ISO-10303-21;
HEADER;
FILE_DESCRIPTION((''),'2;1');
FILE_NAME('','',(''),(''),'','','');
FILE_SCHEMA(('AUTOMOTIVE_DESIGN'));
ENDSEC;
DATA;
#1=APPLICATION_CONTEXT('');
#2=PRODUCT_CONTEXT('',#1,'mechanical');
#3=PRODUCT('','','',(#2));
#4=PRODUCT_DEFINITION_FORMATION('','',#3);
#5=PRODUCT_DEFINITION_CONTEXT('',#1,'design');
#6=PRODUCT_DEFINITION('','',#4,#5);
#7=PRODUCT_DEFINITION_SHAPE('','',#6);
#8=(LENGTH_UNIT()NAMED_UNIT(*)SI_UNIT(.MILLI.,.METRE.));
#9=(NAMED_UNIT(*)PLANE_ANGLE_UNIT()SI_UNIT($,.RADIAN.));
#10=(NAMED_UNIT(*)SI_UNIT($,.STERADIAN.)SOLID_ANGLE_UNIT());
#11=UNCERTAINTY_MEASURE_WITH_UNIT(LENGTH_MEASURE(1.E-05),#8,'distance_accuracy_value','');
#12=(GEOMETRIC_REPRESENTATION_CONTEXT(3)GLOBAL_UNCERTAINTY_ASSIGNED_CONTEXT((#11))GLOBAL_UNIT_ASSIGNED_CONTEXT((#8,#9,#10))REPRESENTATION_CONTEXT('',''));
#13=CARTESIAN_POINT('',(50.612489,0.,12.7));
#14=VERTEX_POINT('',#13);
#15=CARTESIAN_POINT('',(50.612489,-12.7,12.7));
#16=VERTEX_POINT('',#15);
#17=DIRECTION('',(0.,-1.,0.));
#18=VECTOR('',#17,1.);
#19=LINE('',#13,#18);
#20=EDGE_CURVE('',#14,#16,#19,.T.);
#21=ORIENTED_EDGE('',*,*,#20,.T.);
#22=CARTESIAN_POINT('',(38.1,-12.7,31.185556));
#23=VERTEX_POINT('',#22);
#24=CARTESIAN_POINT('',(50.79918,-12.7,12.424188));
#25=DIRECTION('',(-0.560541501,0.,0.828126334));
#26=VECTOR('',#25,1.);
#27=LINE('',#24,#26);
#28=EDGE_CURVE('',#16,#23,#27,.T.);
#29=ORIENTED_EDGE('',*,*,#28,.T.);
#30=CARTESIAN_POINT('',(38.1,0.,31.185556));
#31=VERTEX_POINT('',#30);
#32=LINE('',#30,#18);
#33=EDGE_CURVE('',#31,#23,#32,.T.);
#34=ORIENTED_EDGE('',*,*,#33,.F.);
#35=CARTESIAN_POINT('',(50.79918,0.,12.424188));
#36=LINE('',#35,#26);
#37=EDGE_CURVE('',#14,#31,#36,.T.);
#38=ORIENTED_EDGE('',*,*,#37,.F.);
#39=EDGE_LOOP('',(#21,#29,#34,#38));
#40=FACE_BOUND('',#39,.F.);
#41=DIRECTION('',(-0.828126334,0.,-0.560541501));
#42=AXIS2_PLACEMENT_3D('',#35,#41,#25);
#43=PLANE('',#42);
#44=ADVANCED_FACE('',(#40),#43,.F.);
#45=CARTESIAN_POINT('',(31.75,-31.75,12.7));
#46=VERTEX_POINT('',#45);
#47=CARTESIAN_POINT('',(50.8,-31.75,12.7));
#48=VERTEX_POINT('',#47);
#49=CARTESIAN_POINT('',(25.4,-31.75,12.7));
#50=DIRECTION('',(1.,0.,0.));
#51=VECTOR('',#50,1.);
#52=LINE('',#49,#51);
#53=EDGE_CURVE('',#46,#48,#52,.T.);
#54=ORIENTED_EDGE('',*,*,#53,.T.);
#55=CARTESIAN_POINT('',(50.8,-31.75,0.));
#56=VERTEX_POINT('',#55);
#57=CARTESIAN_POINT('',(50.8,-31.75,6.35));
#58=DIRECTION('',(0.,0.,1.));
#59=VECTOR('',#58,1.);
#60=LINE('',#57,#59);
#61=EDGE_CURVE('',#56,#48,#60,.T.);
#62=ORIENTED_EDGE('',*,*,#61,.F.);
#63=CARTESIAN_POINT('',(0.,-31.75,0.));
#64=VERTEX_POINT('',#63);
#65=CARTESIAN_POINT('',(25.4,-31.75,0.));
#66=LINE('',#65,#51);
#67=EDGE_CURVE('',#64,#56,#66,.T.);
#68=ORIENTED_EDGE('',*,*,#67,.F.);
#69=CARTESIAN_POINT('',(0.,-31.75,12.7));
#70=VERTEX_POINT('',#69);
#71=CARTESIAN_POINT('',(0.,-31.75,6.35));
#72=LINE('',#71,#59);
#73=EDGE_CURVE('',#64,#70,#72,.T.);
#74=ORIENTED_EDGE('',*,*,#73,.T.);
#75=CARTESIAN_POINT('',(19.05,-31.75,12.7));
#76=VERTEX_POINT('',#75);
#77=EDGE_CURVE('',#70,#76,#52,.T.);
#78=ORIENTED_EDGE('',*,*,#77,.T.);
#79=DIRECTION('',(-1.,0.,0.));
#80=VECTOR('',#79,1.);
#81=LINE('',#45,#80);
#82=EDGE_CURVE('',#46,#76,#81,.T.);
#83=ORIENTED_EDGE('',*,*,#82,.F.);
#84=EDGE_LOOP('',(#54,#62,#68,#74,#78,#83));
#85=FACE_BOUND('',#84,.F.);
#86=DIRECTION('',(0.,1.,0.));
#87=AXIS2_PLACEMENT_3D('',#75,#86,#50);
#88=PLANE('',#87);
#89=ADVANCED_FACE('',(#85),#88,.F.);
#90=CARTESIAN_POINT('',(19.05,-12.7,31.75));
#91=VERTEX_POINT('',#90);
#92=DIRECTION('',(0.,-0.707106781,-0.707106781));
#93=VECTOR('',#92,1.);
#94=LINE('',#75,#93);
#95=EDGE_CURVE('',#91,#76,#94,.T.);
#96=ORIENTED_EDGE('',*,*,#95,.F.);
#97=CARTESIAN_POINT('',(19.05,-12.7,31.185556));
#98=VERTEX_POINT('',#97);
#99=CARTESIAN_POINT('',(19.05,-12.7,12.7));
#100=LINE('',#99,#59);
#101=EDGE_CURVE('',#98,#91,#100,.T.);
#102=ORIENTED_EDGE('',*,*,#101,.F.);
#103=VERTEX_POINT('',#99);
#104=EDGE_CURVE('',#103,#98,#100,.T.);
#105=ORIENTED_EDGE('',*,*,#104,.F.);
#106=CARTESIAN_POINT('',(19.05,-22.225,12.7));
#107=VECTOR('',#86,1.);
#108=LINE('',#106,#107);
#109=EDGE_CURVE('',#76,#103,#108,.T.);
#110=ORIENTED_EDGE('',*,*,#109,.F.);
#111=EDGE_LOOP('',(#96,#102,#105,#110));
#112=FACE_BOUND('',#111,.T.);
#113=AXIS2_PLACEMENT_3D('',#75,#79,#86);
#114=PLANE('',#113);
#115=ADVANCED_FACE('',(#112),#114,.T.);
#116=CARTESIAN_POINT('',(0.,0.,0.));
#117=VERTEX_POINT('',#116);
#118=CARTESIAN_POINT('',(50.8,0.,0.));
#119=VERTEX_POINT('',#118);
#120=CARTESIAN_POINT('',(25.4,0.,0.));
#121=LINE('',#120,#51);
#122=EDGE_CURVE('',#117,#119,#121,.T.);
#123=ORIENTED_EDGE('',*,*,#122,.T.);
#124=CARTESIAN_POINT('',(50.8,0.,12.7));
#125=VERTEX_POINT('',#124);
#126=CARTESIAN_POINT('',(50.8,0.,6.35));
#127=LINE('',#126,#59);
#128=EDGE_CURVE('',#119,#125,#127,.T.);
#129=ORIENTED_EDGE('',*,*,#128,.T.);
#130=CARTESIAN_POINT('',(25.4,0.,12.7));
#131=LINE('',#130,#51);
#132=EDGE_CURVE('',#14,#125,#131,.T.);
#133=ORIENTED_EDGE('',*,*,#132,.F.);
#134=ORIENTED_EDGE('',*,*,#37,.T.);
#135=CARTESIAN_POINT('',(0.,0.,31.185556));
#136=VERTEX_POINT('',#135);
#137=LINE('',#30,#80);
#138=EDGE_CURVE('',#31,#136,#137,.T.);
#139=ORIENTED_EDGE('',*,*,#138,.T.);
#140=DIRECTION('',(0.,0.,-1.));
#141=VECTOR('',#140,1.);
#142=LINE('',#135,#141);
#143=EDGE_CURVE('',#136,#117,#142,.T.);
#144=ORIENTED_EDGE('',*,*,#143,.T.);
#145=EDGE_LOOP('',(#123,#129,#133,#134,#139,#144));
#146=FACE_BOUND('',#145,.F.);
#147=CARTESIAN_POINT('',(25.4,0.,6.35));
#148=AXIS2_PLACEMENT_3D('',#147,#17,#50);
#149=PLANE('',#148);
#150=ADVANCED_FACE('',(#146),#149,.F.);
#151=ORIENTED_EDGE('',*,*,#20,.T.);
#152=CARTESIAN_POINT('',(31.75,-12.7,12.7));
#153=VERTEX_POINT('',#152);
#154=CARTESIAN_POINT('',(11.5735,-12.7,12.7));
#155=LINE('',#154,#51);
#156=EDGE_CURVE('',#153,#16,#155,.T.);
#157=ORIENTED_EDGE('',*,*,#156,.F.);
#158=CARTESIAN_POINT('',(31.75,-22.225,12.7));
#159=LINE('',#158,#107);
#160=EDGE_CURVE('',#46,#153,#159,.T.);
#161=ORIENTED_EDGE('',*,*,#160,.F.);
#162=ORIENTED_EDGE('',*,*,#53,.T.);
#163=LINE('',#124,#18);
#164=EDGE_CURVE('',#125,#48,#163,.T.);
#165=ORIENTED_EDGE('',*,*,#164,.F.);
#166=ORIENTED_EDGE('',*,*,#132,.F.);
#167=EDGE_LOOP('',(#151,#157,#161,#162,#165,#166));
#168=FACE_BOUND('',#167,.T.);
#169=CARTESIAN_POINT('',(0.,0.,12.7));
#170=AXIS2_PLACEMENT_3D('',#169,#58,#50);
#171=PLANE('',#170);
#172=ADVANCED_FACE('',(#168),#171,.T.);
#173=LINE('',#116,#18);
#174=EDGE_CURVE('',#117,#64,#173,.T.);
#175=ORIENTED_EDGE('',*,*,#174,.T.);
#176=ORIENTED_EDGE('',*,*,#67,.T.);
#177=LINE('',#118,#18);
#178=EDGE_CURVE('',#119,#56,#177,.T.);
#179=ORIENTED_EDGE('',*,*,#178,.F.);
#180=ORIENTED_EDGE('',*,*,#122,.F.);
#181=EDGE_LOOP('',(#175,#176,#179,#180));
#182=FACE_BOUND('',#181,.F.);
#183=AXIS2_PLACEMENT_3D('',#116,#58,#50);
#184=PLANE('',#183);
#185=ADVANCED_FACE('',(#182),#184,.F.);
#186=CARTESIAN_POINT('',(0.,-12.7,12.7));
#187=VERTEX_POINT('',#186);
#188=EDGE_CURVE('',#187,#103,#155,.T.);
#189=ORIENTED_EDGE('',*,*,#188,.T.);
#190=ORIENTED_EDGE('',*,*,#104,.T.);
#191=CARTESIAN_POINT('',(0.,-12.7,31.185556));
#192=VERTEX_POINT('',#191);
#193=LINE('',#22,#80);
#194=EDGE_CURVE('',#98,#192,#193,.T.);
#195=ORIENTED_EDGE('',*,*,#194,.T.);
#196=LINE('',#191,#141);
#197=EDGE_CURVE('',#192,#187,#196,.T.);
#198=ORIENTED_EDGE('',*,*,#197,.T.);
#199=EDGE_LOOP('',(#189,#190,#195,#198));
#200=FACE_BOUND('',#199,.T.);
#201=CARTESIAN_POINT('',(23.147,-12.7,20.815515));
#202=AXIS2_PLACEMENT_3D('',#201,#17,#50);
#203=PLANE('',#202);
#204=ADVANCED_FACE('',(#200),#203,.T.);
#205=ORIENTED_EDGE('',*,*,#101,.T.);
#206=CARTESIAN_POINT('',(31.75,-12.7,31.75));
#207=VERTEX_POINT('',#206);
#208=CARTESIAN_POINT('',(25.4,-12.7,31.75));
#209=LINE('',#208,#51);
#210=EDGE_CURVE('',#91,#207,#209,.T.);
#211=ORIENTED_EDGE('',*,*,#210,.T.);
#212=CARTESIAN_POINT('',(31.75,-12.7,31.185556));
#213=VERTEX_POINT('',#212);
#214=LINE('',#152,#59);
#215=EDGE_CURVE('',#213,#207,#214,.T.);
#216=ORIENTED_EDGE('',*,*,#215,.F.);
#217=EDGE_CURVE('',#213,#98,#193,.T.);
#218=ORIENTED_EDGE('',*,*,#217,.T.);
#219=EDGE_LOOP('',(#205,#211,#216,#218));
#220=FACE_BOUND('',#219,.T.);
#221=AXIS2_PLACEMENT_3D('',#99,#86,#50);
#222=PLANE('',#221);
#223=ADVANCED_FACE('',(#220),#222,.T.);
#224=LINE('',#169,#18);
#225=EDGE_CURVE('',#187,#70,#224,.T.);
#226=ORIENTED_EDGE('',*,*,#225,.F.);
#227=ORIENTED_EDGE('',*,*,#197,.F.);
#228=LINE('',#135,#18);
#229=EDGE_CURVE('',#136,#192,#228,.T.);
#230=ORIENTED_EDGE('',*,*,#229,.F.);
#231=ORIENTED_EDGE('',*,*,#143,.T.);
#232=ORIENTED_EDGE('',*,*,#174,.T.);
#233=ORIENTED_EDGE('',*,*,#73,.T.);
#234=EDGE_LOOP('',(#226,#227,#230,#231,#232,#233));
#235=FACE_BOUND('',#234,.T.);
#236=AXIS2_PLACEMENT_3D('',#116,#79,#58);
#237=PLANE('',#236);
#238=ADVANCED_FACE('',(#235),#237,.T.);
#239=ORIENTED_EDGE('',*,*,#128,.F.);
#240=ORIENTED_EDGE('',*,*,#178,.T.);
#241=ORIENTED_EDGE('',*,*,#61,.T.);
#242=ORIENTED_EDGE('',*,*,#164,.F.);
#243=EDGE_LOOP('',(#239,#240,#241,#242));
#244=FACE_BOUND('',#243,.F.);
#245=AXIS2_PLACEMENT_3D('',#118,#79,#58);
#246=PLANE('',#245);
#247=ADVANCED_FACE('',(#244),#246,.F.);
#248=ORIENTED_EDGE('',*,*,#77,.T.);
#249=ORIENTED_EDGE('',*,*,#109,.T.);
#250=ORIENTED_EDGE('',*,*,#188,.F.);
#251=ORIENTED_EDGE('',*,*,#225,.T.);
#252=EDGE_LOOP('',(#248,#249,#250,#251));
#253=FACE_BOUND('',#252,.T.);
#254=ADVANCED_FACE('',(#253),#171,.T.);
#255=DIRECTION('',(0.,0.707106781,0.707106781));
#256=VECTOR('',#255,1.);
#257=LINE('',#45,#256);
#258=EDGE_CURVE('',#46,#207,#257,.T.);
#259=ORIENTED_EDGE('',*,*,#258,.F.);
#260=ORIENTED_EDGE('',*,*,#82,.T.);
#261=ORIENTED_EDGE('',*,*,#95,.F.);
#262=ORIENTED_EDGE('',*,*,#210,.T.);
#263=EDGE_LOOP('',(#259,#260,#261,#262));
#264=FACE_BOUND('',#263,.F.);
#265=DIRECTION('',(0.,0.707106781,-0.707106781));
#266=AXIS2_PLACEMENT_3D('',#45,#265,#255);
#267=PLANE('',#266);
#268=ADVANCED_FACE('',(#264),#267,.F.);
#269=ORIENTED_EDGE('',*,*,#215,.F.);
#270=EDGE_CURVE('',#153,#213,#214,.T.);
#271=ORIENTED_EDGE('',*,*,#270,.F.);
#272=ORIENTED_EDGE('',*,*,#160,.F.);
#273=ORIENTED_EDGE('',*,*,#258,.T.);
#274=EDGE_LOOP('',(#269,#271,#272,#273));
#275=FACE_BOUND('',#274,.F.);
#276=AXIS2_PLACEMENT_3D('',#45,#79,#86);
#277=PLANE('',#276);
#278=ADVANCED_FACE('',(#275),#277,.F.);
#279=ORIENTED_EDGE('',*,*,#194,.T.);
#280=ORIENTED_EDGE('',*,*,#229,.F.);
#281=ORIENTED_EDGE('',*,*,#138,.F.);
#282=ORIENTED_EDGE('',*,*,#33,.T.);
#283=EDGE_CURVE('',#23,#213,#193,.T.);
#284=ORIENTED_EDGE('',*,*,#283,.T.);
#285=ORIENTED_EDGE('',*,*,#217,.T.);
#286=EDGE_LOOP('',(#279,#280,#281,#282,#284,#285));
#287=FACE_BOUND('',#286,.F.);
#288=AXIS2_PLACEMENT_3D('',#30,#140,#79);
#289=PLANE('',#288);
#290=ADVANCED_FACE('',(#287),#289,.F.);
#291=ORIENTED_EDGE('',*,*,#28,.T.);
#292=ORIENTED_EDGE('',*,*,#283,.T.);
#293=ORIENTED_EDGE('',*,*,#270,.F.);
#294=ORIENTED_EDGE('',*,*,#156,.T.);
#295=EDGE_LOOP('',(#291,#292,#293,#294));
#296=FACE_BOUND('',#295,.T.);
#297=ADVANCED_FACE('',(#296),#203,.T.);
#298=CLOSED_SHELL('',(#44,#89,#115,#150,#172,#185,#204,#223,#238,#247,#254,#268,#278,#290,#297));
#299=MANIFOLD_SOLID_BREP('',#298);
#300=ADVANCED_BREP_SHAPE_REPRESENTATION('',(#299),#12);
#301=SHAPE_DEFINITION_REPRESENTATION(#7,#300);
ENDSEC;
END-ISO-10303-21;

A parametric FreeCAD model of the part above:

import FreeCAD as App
import Part
import Sketcher
from FreeCAD import Vector
Q = App.Units.Quantity


def add_polygon(sketch, points):
    """Adds a closed chain of lines whose ends are joined by coincident constraints."""
    first, n = sketch.GeometryCount, len(points)
    for a, b in zip(points, points[1:] + points[:1]):
        sketch.addGeometry(Part.LineSegment(App.Vector(*a, 0), App.Vector(*b, 0)), False)
    for i in range(n):
        sketch.addConstraint(Sketcher.Constraint("Coincident", first + i, 2, first + (i + 1) % n, 1))

doc = App.newDocument("Part")
body = doc.addObject("PartDesign::Body", "Body")

# Sketch on XZ plane
sketch1 = doc.addObject("Sketcher::SketchObject", "Sketch")
body.addObject(sketch1)
sketch1.AttachmentSupport = (doc.XZ_Plane, [""])
sketch1.MapMode = "FlatFace"
add_polygon(sketch1, [(0, 13), (0, 0), (51, 0), (51, 13)])  # lines 0-3
sketch1.addConstraint([
    Sketcher.Constraint("Vertical", 0),
    Sketcher.Constraint("Horizontal", 1),
    Sketcher.Constraint("Vertical", 2),
    Sketcher.Constraint("Horizontal", 3),
    Sketcher.Constraint("Coincident", 0, 2, -1, 1),
    Sketcher.Constraint("DistanceX", 1, 1, 1, 2, Q("2 in")),
    Sketcher.Constraint("DistanceY", 0, 2, 0, 1, Q("0.5 in")),
])
pad1 = doc.addObject("PartDesign::Pad", "Pad")
body.addObject(pad1)
pad1.Profile = sketch1
pad1.Length = Q("1.25 in")

# Sketch on XZ plane
sketch2 = doc.addObject("Sketcher::SketchObject", "Sketch001")
body.addObject(sketch2)
sketch2.AttachmentSupport = (doc.XZ_Plane, [""])
sketch2.MapMode = "FlatFace"
add_polygon(sketch2, [(0, 12), (51, 12), (38, 31), (0, 31)])  # lines 0-3
sketch2.addConstraint([
    Sketcher.Constraint("Horizontal", 2),
    Sketcher.Constraint("Vertical", 3),
    Sketcher.Constraint("PointOnObject", 2, 2, -2),
    Sketcher.Constraint("Distance", 0, Q("2 in")),
    Sketcher.Constraint("DistanceX", 2, 2, 2, 1, Q("1.5 in")),
    Sketcher.Constraint("DistanceY", 3, 2, 3, 1, Q("0.75 in")),
    Sketcher.Constraint("Distance", 1, Q("22.6552 mm")),
    Sketcher.Constraint("DistanceY", -1, 1, 0, 2, Q("12.424188 mm")),
])
pad2 = doc.addObject("PartDesign::Pad", "Pad001")
body.addObject(pad2)
pad2.Profile = sketch2
pad2.Length = Q("0.5 in")

# Sketch on XY plane
sketch3 = doc.addObject("Sketcher::SketchObject", "Sketch002")
body.addObject(sketch3)
sketch3.AttachmentSupport = (doc.XY_Plane, [""])
sketch3.MapMode = "FlatFace"
sketch3.AttachmentOffset = App.Placement(Vector(0, 0, 0.5 * 25.4), App.Rotation())
add_polygon(sketch3, [(19, -13), (19, -32), (32, -32), (32, -13)])  # lines 0-3
sketch3.addConstraint([
    Sketcher.Constraint("Vertical", 0),
    Sketcher.Constraint("Horizontal", 1),
    Sketcher.Constraint("Vertical", 2),
    Sketcher.Constraint("Horizontal", 3),
    Sketcher.Constraint("DistanceX", 1, 1, 1, 2, Q("0.5 in")),
    Sketcher.Constraint("DistanceY", 0, 2, 0, 1, Q("0.75 in")),
    Sketcher.Constraint("DistanceY", 2, 2, -1, 1, Q("0.5 in")),
    Sketcher.Constraint("DistanceX", -1, 1, 0, 2, Q("0.75 in")),
])
pad3 = doc.addObject("PartDesign::Pad", "Pad002")
body.addObject(pad3)
pad3.Profile = sketch3
pad3.Length = Q("0.75 in")

# Sketch on XY plane
sketch4 = doc.addObject("Sketcher::SketchObject", "Sketch003")
body.addObject(sketch4)
sketch4.AttachmentSupport = (doc.XY_Plane, [""])
sketch4.MapMode = "FlatFace"
sketch4.AttachmentOffset = App.Placement(Vector(0, 0, 0.5 * 25.4), App.Rotation())
add_polygon(sketch4, [(19, -13), (19, -32), (32, -32), (32, -13)])  # lines 0-3
sketch4.addConstraint([
    Sketcher.Constraint("Vertical", 0),
    Sketcher.Constraint("Horizontal", 1),
    Sketcher.Constraint("Vertical", 2),
    Sketcher.Constraint("Horizontal", 3),
    Sketcher.Constraint("DistanceX", 1, 1, 1, 2, Q("0.5 in")),
    Sketcher.Constraint("DistanceY", 0, 2, 0, 1, Q("0.75 in")),
    Sketcher.Constraint("DistanceY", 2, 2, -1, 1, Q("0.5 in")),
    Sketcher.Constraint("DistanceX", -1, 1, 0, 2, Q("0.75 in")),
])
pad4 = doc.addObject("PartDesign::Pad", "Pad003")
body.addObject(pad4)
pad4.Profile = sketch4
pad4.Length = Q("0.75 in")

# Sketch on YZ plane
sketch5 = doc.addObject("Sketcher::SketchObject", "Sketch004")
body.addObject(sketch5)
sketch5.AttachmentSupport = (doc.YZ_Plane, [""])
sketch5.MapMode = "FlatFace"
sketch5.AttachmentOffset = App.Placement(Vector(0, 0, 1.25 * 25.4), App.Rotation())
add_polygon(sketch5, [(-32, 13), (-13, 32), (-32, 32)])  # lines 0-2
sketch5.addConstraint([
    Sketcher.Constraint("Horizontal", 1),
    Sketcher.Constraint("Vertical", 2),
    Sketcher.Constraint("Equal", 1, 2),
    Sketcher.Constraint("DistanceX", 1, 2, 1, 1, Q("0.75 in")),
    Sketcher.Constraint("DistanceX", 0, 2, -1, 1, Q("0.5 in")),
    Sketcher.Constraint("DistanceY", -1, 1, 2, 2, Q("0.5 in")),
])
pocket1 = doc.addObject("PartDesign::Pocket", "Pocket")
body.addObject(pocket1)
pocket1.Profile = sketch5
pocket1.Length = Q("2 in")

doc.recompute()
